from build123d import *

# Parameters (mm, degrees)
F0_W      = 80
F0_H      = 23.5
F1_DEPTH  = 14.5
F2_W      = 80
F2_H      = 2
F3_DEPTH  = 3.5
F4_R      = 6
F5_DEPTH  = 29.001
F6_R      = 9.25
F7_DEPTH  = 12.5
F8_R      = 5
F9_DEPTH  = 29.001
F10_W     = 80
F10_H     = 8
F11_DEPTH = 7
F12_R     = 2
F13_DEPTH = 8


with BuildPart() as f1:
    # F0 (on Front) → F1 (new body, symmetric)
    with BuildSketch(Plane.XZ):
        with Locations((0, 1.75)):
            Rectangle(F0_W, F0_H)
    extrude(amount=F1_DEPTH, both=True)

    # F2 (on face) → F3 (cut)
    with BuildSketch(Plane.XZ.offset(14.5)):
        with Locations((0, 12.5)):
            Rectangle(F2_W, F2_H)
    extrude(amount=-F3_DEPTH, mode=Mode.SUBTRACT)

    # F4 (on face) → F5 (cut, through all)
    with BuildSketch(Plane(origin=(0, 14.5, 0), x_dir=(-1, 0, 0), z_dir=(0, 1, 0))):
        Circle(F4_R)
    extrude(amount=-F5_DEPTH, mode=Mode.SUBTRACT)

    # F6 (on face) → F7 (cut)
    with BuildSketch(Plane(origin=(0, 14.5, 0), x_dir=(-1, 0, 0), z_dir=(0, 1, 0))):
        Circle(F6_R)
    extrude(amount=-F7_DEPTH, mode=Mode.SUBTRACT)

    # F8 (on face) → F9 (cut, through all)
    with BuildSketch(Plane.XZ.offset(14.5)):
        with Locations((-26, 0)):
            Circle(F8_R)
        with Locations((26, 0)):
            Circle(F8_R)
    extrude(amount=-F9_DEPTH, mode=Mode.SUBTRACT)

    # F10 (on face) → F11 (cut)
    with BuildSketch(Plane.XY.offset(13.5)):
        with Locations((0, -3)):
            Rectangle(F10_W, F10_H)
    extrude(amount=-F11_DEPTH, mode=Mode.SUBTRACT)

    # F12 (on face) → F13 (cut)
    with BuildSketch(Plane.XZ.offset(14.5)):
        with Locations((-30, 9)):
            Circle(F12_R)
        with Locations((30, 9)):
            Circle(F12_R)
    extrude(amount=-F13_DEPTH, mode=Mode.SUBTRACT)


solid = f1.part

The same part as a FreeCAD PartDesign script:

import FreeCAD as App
import Part
import Sketcher
from FreeCAD import Vector
Q = App.Units.Quantity


def add_polygon(sketch, points):
    """Adds a closed chain of lines whose ends are joined by coincident constraints."""
    first, n = sketch.GeometryCount, len(points)
    for a, b in zip(points, points[1:] + points[:1]):
        sketch.addGeometry(Part.LineSegment(App.Vector(*a, 0), App.Vector(*b, 0)), False)
    for i in range(n):
        sketch.addConstraint(Sketcher.Constraint("Coincident", first + i, 2, first + (i + 1) % n, 1))

doc = App.newDocument("Part")
params = doc.addObject("Spreadsheet::Sheet", "Params")
for row, (alias, value) in enumerate([
    ("sketch1_width", "80 mm"),
    ("sketch1_height", "23.5 mm"),
    ("pad1_length", "29 mm"),
    ("sketch2_width", "80 mm"),
    ("sketch2_height", "2 mm"),
    ("pocket1_length", "3.5 mm"),
    ("sketch3_diameter", "12 mm"),
    ("sketch4_diameter", "18.5 mm"),
    ("pocket3_length", "12.5 mm"),
    ("sketch5_diameter", "10 mm"),
    ("sketch6_width", "80 mm"),
    ("sketch6_height", "8 mm"),
    ("pocket5_length", "7 mm"),
    ("sketch7_diameter", "4 mm"),
    ("pocket6_length", "8 mm"),
], start=1):
    params.set(f"A{row}", alias)
    params.set(f"B{row}", "=" + value)
    params.setAlias(f"B{row}", alias)

body = doc.addObject("PartDesign::Body", "Body")

# Sketch on XZ plane
sketch1 = doc.addObject("Sketcher::SketchObject", "Sketch")
body.addObject(sketch1)
sketch1.AttachmentSupport = (doc.XZ_Plane, [""])
sketch1.MapMode = "FlatFace"
add_polygon(sketch1, [(-40, 14), (-40, -10), (40, -10), (40, 14)])  # lines 0-3
sketch1.addConstraint([
    Sketcher.Constraint("Vertical", 0),
    Sketcher.Constraint("Horizontal", 1),
    Sketcher.Constraint("Vertical", 2),
    Sketcher.Constraint("Horizontal", 3),
    Sketcher.Constraint("DistanceX", 1, 1, 1, 2, Q("80 mm")),
    Sketcher.Constraint("DistanceY", 0, 2, 0, 1, Q("23.5 mm")),
    Sketcher.Constraint("DistanceX", 0, 2, -1, 1, Q("40 mm")),
    Sketcher.Constraint("DistanceY", 0, 2, -1, 1, Q("10 mm")),
])
sketch1.setExpression("Constraints[8]", "Params.sketch1_width")
sketch1.setExpression("Constraints[9]", "Params.sketch1_height")
pad1 = doc.addObject("PartDesign::Pad", "Pad")
body.addObject(pad1)
pad1.Profile = sketch1
pad1.setExpression("Length", "Params.pad1_length")
pad1.Midplane = True

# Sketch on XZ plane
sketch2 = doc.addObject("Sketcher::SketchObject", "Sketch001")
body.addObject(sketch2)
sketch2.AttachmentSupport = (doc.XZ_Plane, [""])
sketch2.MapMode = "FlatFace"
sketch2.AttachmentOffset = App.Placement(Vector(0, 0, 14.5), App.Rotation())
add_polygon(sketch2, [(-40, 13.5), (-40, 11.5), (40, 11.5), (40, 13.5)])  # lines 0-3
sketch2.addConstraint([
    Sketcher.Constraint("Vertical", 0),
    Sketcher.Constraint("Horizontal", 1),
    Sketcher.Constraint("Vertical", 2),
    Sketcher.Constraint("Horizontal", 3),
    Sketcher.Constraint("DistanceX", 1, 1, 1, 2, Q("80 mm")),
    Sketcher.Constraint("DistanceY", 0, 2, 0, 1, Q("2 mm")),
    Sketcher.Constraint("DistanceX", 0, 2, -1, 1, Q("40 mm")),
    Sketcher.Constraint("DistanceY", -1, 1, 0, 2, Q("11.5 mm")),
])
sketch2.setExpression("Constraints[8]", "Params.sketch2_width")
sketch2.setExpression("Constraints[9]", "Params.sketch2_height")
pocket1 = doc.addObject("PartDesign::Pocket", "Pocket")
body.addObject(pocket1)
pocket1.Profile = sketch2
pocket1.setExpression("Length", "Params.pocket1_length")

# Sketch on XZ plane
sketch3 = doc.addObject("Sketcher::SketchObject", "Sketch002")
body.addObject(sketch3)
sketch3.AttachmentSupport = (doc.XZ_Plane, [""])
sketch3.MapMode = "FlatFace"
sketch3.AttachmentOffset = App.Placement(Vector(0, 0, -14.5), App.Rotation())
sketch3.addGeometry(Part.Circle(Vector(0, 0, 0), Vector(0, 0, 1), 6), False)
sketch3.addConstraint([
    Sketcher.Constraint("Coincident", 0, 3, -1, 1),
    Sketcher.Constraint("Diameter", 0, Q("12 mm")),
])
sketch3.setExpression("Constraints[1]", "Params.sketch3_diameter")
pocket2 = doc.addObject("PartDesign::Pocket", "Pocket001")
body.addObject(pocket2)
pocket2.Profile = sketch3
pocket2.Type = "ThroughAll"
pocket2.Reversed = True

# Sketch on XZ plane
sketch4 = doc.addObject("Sketcher::SketchObject", "Sketch003")
body.addObject(sketch4)
sketch4.AttachmentSupport = (doc.XZ_Plane, [""])
sketch4.MapMode = "FlatFace"
sketch4.AttachmentOffset = App.Placement(Vector(0, 0, -14.5), App.Rotation())
sketch4.addGeometry(Part.Circle(Vector(0, 0, 0), Vector(0, 0, 1), 9), False)
sketch4.addConstraint([
    Sketcher.Constraint("Coincident", 0, 3, -1, 1),
    Sketcher.Constraint("Diameter", 0, Q("18.5 mm")),
])
sketch4.setExpression("Constraints[1]", "Params.sketch4_diameter")
pocket3 = doc.addObject("PartDesign::Pocket", "Pocket002")
body.addObject(pocket3)
pocket3.Profile = sketch4
pocket3.setExpression("Length", "Params.pocket3_length")
pocket3.Reversed = True

# Sketch on XZ plane
sketch5 = doc.addObject("Sketcher::SketchObject", "Sketch004")
body.addObject(sketch5)
sketch5.AttachmentSupport = (doc.XZ_Plane, [""])
sketch5.MapMode = "FlatFace"
sketch5.AttachmentOffset = App.Placement(Vector(0, 0, 14.5), App.Rotation())
sketch5.addGeometry([
    Part.Circle(Vector(-26, 0, 0), Vector(0, 0, 1), 5),
    Part.Circle(Vector(26, 0, 0), Vector(0, 0, 1), 5),
], False)
sketch5.addConstraint([
    Sketcher.Constraint("Equal", 0, 1),
    Sketcher.Constraint("Symmetric", 0, 3, 1, 3, -1, 1),
    Sketcher.Constraint("PointOnObject", 0, 3, -1),
    Sketcher.Constraint("Diameter", 0, Q("10 mm")),
    Sketcher.Constraint("DistanceX", 0, 3, -1, 1, Q("26 mm")),
])
sketch5.setExpression("Constraints[3]", "Params.sketch5_diameter")
pocket4 = doc.addObject("PartDesign::Pocket", "Pocket003")
body.addObject(pocket4)
pocket4.Profile = sketch5
pocket4.Type = "ThroughAll"

# Sketch on XY plane
sketch6 = doc.addObject("Sketcher::SketchObject", "Sketch005")
body.addObject(sketch6)
sketch6.AttachmentSupport = (doc.XY_Plane, [""])
sketch6.MapMode = "FlatFace"
sketch6.AttachmentOffset = App.Placement(Vector(0, 0, 13.5), App.Rotation())
add_polygon(sketch6, [(-40, 1), (-40, -7), (40, -7), (40, 1)])  # lines 0-3
sketch6.addConstraint([
    Sketcher.Constraint("Vertical", 0),
    Sketcher.Constraint("Horizontal", 1),
    Sketcher.Constraint("Vertical", 2),
    Sketcher.Constraint("Horizontal", 3),
    Sketcher.Constraint("DistanceX", 1, 1, 1, 2, Q("80 mm")),
    Sketcher.Constraint("DistanceY", 0, 2, 0, 1, Q("8 mm")),
    Sketcher.Constraint("DistanceX", 0, 2, -1, 1, Q("40 mm")),
    Sketcher.Constraint("DistanceY", 0, 2, -1, 1, Q("7 mm")),
])
sketch6.setExpression("Constraints[8]", "Params.sketch6_width")
sketch6.setExpression("Constraints[9]", "Params.sketch6_height")
pocket5 = doc.addObject("PartDesign::Pocket", "Pocket004")
body.addObject(pocket5)
pocket5.Profile = sketch6
pocket5.setExpression("Length", "Params.pocket5_length")

# Sketch on XZ plane
sketch7 = doc.addObject("Sketcher::SketchObject", "Sketch006")
body.addObject(sketch7)
sketch7.AttachmentSupport = (doc.XZ_Plane, [""])
sketch7.MapMode = "FlatFace"
sketch7.AttachmentOffset = App.Placement(Vector(0, 0, 14.5), App.Rotation())
sketch7.addGeometry([
    Part.Circle(Vector(-30, 9, 0), Vector(0, 0, 1), 2),
    Part.Circle(Vector(30, 9, 0), Vector(0, 0, 1), 2),
], False)
sketch7.addConstraint([
    Sketcher.Constraint("Equal", 0, 1),
    Sketcher.Constraint("Symmetric", 0, 3, 1, 3, -2),
    Sketcher.Constraint("Diameter", 0, Q("4 mm")),
    Sketcher.Constraint("DistanceX", 0, 3, -1, 1, Q("30 mm")),
    Sketcher.Constraint("DistanceY", -1, 1, 0, 3, Q("9 mm")),
])
sketch7.setExpression("Constraints[2]", "Params.sketch7_diameter")
pocket6 = doc.addObject("PartDesign::Pocket", "Pocket005")
body.addObject(pocket6)
pocket6.Profile = sketch7
pocket6.setExpression("Length", "Params.pocket6_length")

doc.recompute()
